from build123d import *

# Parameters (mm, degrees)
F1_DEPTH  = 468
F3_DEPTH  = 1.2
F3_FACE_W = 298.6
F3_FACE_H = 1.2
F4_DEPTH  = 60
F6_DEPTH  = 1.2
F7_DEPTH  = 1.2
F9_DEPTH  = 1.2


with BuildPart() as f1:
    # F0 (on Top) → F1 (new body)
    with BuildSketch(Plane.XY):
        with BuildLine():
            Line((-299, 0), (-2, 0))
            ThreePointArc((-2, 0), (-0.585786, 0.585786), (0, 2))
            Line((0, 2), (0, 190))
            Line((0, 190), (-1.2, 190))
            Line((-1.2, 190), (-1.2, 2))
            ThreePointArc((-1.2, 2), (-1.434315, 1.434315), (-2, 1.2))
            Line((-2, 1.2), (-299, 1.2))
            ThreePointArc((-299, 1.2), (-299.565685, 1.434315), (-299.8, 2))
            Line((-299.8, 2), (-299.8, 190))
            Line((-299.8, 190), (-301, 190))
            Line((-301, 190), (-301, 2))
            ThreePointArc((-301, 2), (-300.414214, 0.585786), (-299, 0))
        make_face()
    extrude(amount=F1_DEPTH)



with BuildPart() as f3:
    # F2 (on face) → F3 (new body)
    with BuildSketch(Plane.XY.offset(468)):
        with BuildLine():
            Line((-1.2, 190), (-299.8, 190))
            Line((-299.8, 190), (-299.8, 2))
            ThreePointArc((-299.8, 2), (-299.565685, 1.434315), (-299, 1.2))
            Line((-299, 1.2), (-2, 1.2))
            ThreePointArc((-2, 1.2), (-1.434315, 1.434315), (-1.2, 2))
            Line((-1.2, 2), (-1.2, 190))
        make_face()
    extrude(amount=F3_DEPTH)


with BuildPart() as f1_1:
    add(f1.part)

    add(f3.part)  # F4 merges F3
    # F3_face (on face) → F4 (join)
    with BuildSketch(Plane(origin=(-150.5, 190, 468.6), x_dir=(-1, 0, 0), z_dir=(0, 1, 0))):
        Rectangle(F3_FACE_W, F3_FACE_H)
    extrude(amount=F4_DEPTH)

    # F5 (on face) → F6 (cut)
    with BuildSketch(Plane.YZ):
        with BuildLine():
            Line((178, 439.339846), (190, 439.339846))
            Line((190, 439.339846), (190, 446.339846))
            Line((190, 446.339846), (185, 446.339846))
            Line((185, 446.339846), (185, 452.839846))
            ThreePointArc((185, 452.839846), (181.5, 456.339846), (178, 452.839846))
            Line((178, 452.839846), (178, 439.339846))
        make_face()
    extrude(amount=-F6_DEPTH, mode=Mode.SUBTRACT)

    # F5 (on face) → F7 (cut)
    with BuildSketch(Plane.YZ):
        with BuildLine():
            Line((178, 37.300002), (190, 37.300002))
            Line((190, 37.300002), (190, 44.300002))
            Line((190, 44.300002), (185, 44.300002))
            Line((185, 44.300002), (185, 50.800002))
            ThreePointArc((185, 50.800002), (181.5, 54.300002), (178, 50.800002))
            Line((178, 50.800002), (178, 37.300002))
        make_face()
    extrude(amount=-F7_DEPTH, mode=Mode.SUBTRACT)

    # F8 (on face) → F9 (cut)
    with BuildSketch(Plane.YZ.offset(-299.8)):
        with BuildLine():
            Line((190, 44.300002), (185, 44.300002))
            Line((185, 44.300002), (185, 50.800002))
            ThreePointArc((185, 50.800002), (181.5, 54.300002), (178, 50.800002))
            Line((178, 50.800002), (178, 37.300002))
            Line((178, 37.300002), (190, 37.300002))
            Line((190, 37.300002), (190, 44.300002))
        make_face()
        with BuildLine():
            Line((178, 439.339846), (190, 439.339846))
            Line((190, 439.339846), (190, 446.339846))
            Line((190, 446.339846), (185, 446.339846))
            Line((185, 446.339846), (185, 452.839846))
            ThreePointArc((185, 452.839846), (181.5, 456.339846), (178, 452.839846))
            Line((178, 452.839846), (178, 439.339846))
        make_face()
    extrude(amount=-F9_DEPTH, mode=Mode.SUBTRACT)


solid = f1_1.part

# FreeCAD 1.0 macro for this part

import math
import FreeCAD as App
import Part
import Sketcher

V = App.Vector
Q = App.Units.Quantity


def add_polygon(sketch, points):
    """Adds a closed chain of lines whose ends are joined by coincident constraints."""
    first, n = sketch.GeometryCount, len(points)
    for a, b in zip(points, points[1:] + points[:1]):
        sketch.addGeometry(Part.LineSegment(App.Vector(*a, 0), App.Vector(*b, 0)), False)
    for i in range(n):
        sketch.addConstraint(Sketcher.Constraint("Coincident", first + i, 2, first + (i + 1) % n, 1))

doc = App.newDocument("Part")
params = doc.addObject("Spreadsheet::Sheet", "Params")
for row, (alias, value) in enumerate([
    ("sketch1_radius", "1.999999 mm"),
    ("sketch1_radius2", "0.800001 mm"),
    ("sketch1_width", "297 mm"),
    ("sketch1_height", "188 mm"),
    ("pad1_length", "468 mm"),
    ("sketch2_radius", "0.800001 mm"),
    ("sketch2_width", "297 mm"),
    ("sketch2_height", "188 mm"),
    ("pad2_length", "1.2 mm"),
    ("sketch3_width", "298.6 mm"),
    ("sketch3_height", "1.2 mm"),
    ("pad3_length", "60 mm"),
    ("sketch4_radius", "3.5 mm"),
    ("sketch4_width", "12 mm"),
    ("sketch4_height", "7 mm"),
    ("sketch4_height2", "6.5 mm"),
    ("pocket1_length", "1.2 mm"),
    ("sketch5_radius", "3.5 mm"),
    ("sketch5_width", "12 mm"),
    ("sketch5_height", "7 mm"),
    ("sketch5_height2", "6.5 mm"),
    ("pocket2_length", "1.2 mm"),
    ("sketch6_radius", "3.5 mm"),
    ("sketch6_width", "5 mm"),
    ("sketch6_height", "7 mm"),
    ("sketch6_height2", "6.5 mm"),
    ("pocket3_length", "1.2 mm"),
], start=1):
    params.set(f"A{row}", alias)
    params.set(f"B{row}", "=" + value)
    params.setAlias(f"B{row}", alias)

body = doc.addObject("PartDesign::Body", "Body")

# Sketch on XY plane
sketch1 = body.newObject("Sketcher::SketchObject", "Sketch")
sketch1.AttachmentSupport = (doc.getObject("XY_Plane"), [""])
sketch1.MapMode = "FlatFace"
sketch1.addGeometry(Part.LineSegment(V(-299, 0, 0), V(-2, 0, 0)), False)
sketch1.addGeometry(Part.ArcOfCircle(Part.Circle(V(-1.999999, 1.999999, 0), V(0, 0, 1), 1.999999), math.radians(-90.000043), math.radians(0.000043)), False)
sketch1.addGeometry(Part.LineSegment(V(0, 2, 0), V(0, 190, 0)), False)
sketch1.addGeometry(Part.LineSegment(V(0, 190, 0), V(-1.2, 190, 0)), False)
sketch1.addGeometry(Part.LineSegment(V(-1.2, 190, 0), V(-1.2, 2, 0)), False)
sketch1.addGeometry(Part.ArcOfCircle(Part.Circle(V(-2.000001, 2.000001, 0), V(0, 0, 1), 0.800001), math.radians(-89.999896), math.radians(-0.000104)), False)
sketch1.addGeometry(Part.LineSegment(V(-2, 1.2, 0), V(-299, 1.2, 0)), False)
sketch1.addGeometry(Part.ArcOfCircle(Part.Circle(V(-298.999999, 2.000001, 0), V(0, 0, 1), 0.800001), math.radians(-179.999896), math.radians(-90.000104)), False)
sketch1.addGeometry(Part.LineSegment(V(-299.8, 2, 0), V(-299.8, 190, 0)), False)
sketch1.addGeometry(Part.LineSegment(V(-299.8, 190, 0), V(-301, 190, 0)), False)
sketch1.addGeometry(Part.LineSegment(V(-301, 190, 0), V(-301, 2, 0)), False)
sketch1.addGeometry(Part.ArcOfCircle(Part.Circle(V(-299.000001, 1.999999, 0), V(0, 0, 1), 1.999999), math.radians(179.999957), math.radians(270.000043)), False)
sketch1.addConstraint(Sketcher.Constraint("Tangent", 0, 2, 1, 1))
sketch1.addConstraint(Sketcher.Constraint("Tangent", 1, 2, 2, 1))
sketch1.addConstraint(Sketcher.Constraint("Coincident", 2, 2, 3, 1))
sketch1.addConstraint(Sketcher.Constraint("Coincident", 3, 2, 4, 1))
sketch1.addConstraint(Sketcher.Constraint("Tangent", 4, 2, 5, 2))
sketch1.addConstraint(Sketcher.Constraint("Tangent", 5, 1, 6, 1))
sketch1.addConstraint(Sketcher.Constraint("Tangent", 6, 2, 7, 2))
sketch1.addConstraint(Sketcher.Constraint("Tangent", 7, 1, 8, 1))
sketch1.addConstraint(Sketcher.Constraint("Coincident", 8, 2, 9, 1))
sketch1.addConstraint(Sketcher.Constraint("Coincident", 9, 2, 10, 1))
sketch1.addConstraint(Sketcher.Constraint("Tangent", 10, 2, 11, 1))
sketch1.addConstraint(Sketcher.Constraint("Tangent", 11, 2, 0, 1))
sketch1.addConstraint(Sketcher.Constraint("Horizontal", 0))
sketch1.addConstraint(Sketcher.Constraint("Vertical", 2))
sketch1.addConstraint(Sketcher.Constraint("Horizontal", 3))
sketch1.addConstraint(Sketcher.Constraint("Vertical", 4))
sketch1.addConstraint(Sketcher.Constraint("Horizontal", 6))
sketch1.addConstraint(Sketcher.Constraint("Vertical", 8))
sketch1.addConstraint(Sketcher.Constraint("Horizontal", 9))
sketch1.addConstraint(Sketcher.Constraint("Vertical", 10))
sketch1.addConstraint(Sketcher.Constraint("Coincident", 5, 3, 1, 3))
sketch1.addConstraint(Sketcher.Constraint("Coincident", 11, 3, 7, 3))
sketch1.addConstraint(Sketcher.Constraint("Equal", 5, 7))
sketch1.addConstraint(Sketcher.Constraint("PointOnObject", 0, 2, -1))
sketch1.addConstraint(Sketcher.Constraint("PointOnObject", 1, 2, -2))
sketch1.addConstraint(Sketcher.Constraint("Horizontal", 3, 2, 8, 2))
sketch1.addConstraint(Sketcher.Constraint("Radius", 1, Q("1.999999 mm")))
sketch1.addConstraint(Sketcher.Constraint("Radius", 5, Q("0.800001 mm")))
sketch1.addConstraint(Sketcher.Constraint("DistanceX", 0, 1, 0, 2, Q("297 mm")))
sketch1.addConstraint(Sketcher.Constraint("DistanceY", 2, 1, 2, 2, Q("188 mm")))
sketch1.setExpression("Constraints[26]", "Params.sketch1_radius")
sketch1.setExpression("Constraints[27]", "Params.sketch1_radius2")
sketch1.setExpression("Constraints[28]", "Params.sketch1_width")
sketch1.setExpression("Constraints[29]", "Params.sketch1_height")
pad1 = body.newObject("PartDesign::Pad", "Pad")
pad1.Profile = sketch1
pad1.setExpression("Length", "Params.pad1_length")
body2 = doc.addObject("PartDesign::Body", "Body001")

# Sketch on XY plane
sketch2 = body2.newObject("Sketcher::SketchObject", "Sketch001")
sketch2.AttachmentSupport = (doc.getObject("XY_Plane001"), [""])
sketch2.MapMode = "FlatFace"
sketch2.AttachmentOffset = App.Placement(V(0, 0, 468), App.Rotation())
sketch2.addGeometry(Part.LineSegment(V(-1.2, 190, 0), V(-299.8, 190, 0)), False)
sketch2.addGeometry(Part.LineSegment(V(-299.8, 190, 0), V(-299.8, 2, 0)), False)
sketch2.addGeometry(Part.ArcOfCircle(Part.Circle(V(-298.999999, 2.000001, 0), V(0, 0, 1), 0.800001), math.radians(-179.999896), math.radians(-90.000104)), False)
sketch2.addGeometry(Part.LineSegment(V(-299, 1.2, 0), V(-2, 1.2, 0)), False)
sketch2.addGeometry(Part.ArcOfCircle(Part.Circle(V(-2.000001, 2.000001, 0), V(0, 0, 1), 0.800001), math.radians(-89.999896), math.radians(-0.000104)), False)
sketch2.addGeometry(Part.LineSegment(V(-1.2, 2, 0), V(-1.2, 190, 0)), False)
sketch2.addConstraint(Sketcher.Constraint("Coincident", 0, 2, 1, 1))
sketch2.addConstraint(Sketcher.Constraint("Tangent", 1, 2, 2, 1))
sketch2.addConstraint(Sketcher.Constraint("Tangent", 2, 2, 3, 1))
sketch2.addConstraint(Sketcher.Constraint("Tangent", 3, 2, 4, 1))
sketch2.addConstraint(Sketcher.Constraint("Tangent", 4, 2, 5, 1))
sketch2.addConstraint(Sketcher.Constraint("Coincident", 5, 2, 0, 1))
sketch2.addConstraint(Sketcher.Constraint("Horizontal", 0))
sketch2.addConstraint(Sketcher.Constraint("Vertical", 1))
sketch2.addConstraint(Sketcher.Constraint("Horizontal", 3))
sketch2.addConstraint(Sketcher.Constraint("Vertical", 5))
sketch2.addConstraint(Sketcher.Constraint("Equal", 2, 4))
sketch2.addConstraint(Sketcher.Constraint("Radius", 2, Q("0.800001 mm")))
sketch2.addConstraint(Sketcher.Constraint("DistanceX", 3, 1, 3, 2, Q("297 mm")))
sketch2.addConstraint(Sketcher.Constraint("DistanceY", 1, 2, 1, 1, Q("188 mm")))
sketch2.addConstraint(Sketcher.Constraint("DistanceX", 2, 3, -1, 1, Q("298.999999 mm")))
sketch2.addConstraint(Sketcher.Constraint("DistanceY", -1, 1, 2, 3, Q("2.000001 mm")))
sketch2.setExpression("Constraints[11]", "Params.sketch2_radius")
sketch2.setExpression("Constraints[12]", "Params.sketch2_width")
sketch2.setExpression("Constraints[13]", "Params.sketch2_height")
pad2 = body2.newObject("PartDesign::Pad", "Pad001")
pad2.Profile = sketch2
pad2.setExpression("Length", "Params.pad2_length")
body.AllowCompound = True
doc.recompute()

boolean = body.newObject("PartDesign::Boolean", "Boolean")
boolean.Type = "Fuse"
boolean.addObjects([body2])

# Sketch on XZ plane
sketch3 = body.newObject("Sketcher::SketchObject", "Sketch002")
sketch3.AttachmentSupport = (doc.getObject("XZ_Plane"), [""])
sketch3.MapMode = "FlatFace"
sketch3.AttachmentOffset = App.Placement(V(0, 0, -190), App.Rotation())
add_polygon(sketch3, [(-1.2, 469.2), (-1.2, 468), (-299.8, 468), (-299.8, 469.2)])  # lines 0-3
sketch3.addConstraint(Sketcher.Constraint("Vertical", 0))
sketch3.addConstraint(Sketcher.Constraint("Horizontal", 1))
sketch3.addConstraint(Sketcher.Constraint("Vertical", 2))
sketch3.addConstraint(Sketcher.Constraint("Horizontal", 3))
sketch3.addConstraint(Sketcher.Constraint("DistanceX", 1, 2, 1, 1, Q("298.6 mm")))
sketch3.addConstraint(Sketcher.Constraint("DistanceY", 0, 2, 0, 1, Q("1.2 mm")))
sketch3.addConstraint(Sketcher.Constraint("DistanceY", -1, 1, 0, 2, Q("468 mm")))
sketch3.addConstraint(Sketcher.Constraint("DistanceX", 0, 2, -1, 1, Q("1.2 mm")))
sketch3.setExpression("Constraints[8]", "Params.sketch3_width")
sketch3.setExpression("Constraints[9]", "Params.sketch3_height")
pad3 = body.newObject("PartDesign::Pad", "Pad002")
pad3.Profile = sketch3
pad3.setExpression("Length", "Params.pad3_length")
pad3.Reversed = True

# Sketch on YZ plane
sketch4 = body.newObject("Sketcher::SketchObject", "Sketch003")
sketch4.AttachmentSupport = (doc.getObject("YZ_Plane"), [""])
sketch4.MapMode = "FlatFace"
sketch4.addGeometry(Part.LineSegment(V(178, 439.339846, 0), V(190, 439.339846, 0)), False)
sketch4.addGeometry(Part.LineSegment(V(190, 439.339846, 0), V(190, 446.339846, 0)), False)
sketch4.addGeometry(Part.LineSegment(V(190, 446.339846, 0), V(185, 446.339846, 0)), False)
sketch4.addGeometry(Part.LineSegment(V(185, 446.339846, 0), V(185, 452.839846, 0)), False)
sketch4.addGeometry(Part.ArcOfCircle(Part.Circle(V(181.5, 452.839846, 0), V(0, 0, 1), 3.5), math.radians(0), math.radians(180)), False)
sketch4.addGeometry(Part.LineSegment(V(178, 452.839846, 0), V(178, 439.339846, 0)), False)
sketch4.addConstraint(Sketcher.Constraint("Coincident", 0, 2, 1, 1))
sketch4.addConstraint(Sketcher.Constraint("Coincident", 1, 2, 2, 1))
sketch4.addConstraint(Sketcher.Constraint("Coincident", 2, 2, 3, 1))
sketch4.addConstraint(Sketcher.Constraint("Tangent", 3, 2, 4, 1))
sketch4.addConstraint(Sketcher.Constraint("Tangent", 4, 2, 5, 1))
sketch4.addConstraint(Sketcher.Constraint("Coincident", 5, 2, 0, 1))
sketch4.addConstraint(Sketcher.Constraint("Horizontal", 0))
sketch4.addConstraint(Sketcher.Constraint("Vertical", 1))
sketch4.addConstraint(Sketcher.Constraint("Horizontal", 2))
sketch4.addConstraint(Sketcher.Constraint("Vertical", 3))
sketch4.addConstraint(Sketcher.Constraint("Vertical", 5))
sketch4.addConstraint(Sketcher.Constraint("Radius", 4, Q("3.5 mm")))
sketch4.addConstraint(Sketcher.Constraint("DistanceX", 0, 1, 0, 2, Q("12 mm")))
sketch4.addConstraint(Sketcher.Constraint("DistanceY", 1, 1, 1, 2, Q("7 mm")))
sketch4.addConstraint(Sketcher.Constraint("DistanceY", 3, 1, 3, 2, Q("6.5 mm")))
sketch4.addConstraint(Sketcher.Constraint("DistanceX", -1, 1, 0, 2, Q("190 mm")))
sketch4.addConstraint(Sketcher.Constraint("DistanceY", -1, 1, 4, 3, Q("452.839846 mm")))
sketch4.setExpression("Constraints[11]", "Params.sketch4_radius")
sketch4.setExpression("Constraints[12]", "Params.sketch4_width")
sketch4.setExpression("Constraints[13]", "Params.sketch4_height")
sketch4.setExpression("Constraints[14]", "Params.sketch4_height2")
pocket1 = body.newObject("PartDesign::Pocket", "Pocket")
pocket1.Profile = sketch4
pocket1.setExpression("Length", "Params.pocket1_length")

# Sketch on YZ plane
sketch5 = body.newObject("Sketcher::SketchObject", "Sketch004")
sketch5.AttachmentSupport = (doc.getObject("YZ_Plane"), [""])
sketch5.MapMode = "FlatFace"
sketch5.addGeometry(Part.LineSegment(V(178, 37.300002, 0), V(190, 37.300002, 0)), False)
sketch5.addGeometry(Part.LineSegment(V(190, 37.300002, 0), V(190, 44.300002, 0)), False)
sketch5.addGeometry(Part.LineSegment(V(190, 44.300002, 0), V(185, 44.300002, 0)), False)
sketch5.addGeometry(Part.LineSegment(V(185, 44.300002, 0), V(185, 50.800002, 0)), False)
sketch5.addGeometry(Part.ArcOfCircle(Part.Circle(V(181.5, 50.800002, 0), V(0, 0, 1), 3.5), math.radians(0), math.radians(180)), False)
sketch5.addGeometry(Part.LineSegment(V(178, 50.800002, 0), V(178, 37.300002, 0)), False)
sketch5.addConstraint(Sketcher.Constraint("Coincident", 0, 2, 1, 1))
sketch5.addConstraint(Sketcher.Constraint("Coincident", 1, 2, 2, 1))
sketch5.addConstraint(Sketcher.Constraint("Coincident", 2, 2, 3, 1))
sketch5.addConstraint(Sketcher.Constraint("Tangent", 3, 2, 4, 1))
sketch5.addConstraint(Sketcher.Constraint("Tangent", 4, 2, 5, 1))
sketch5.addConstraint(Sketcher.Constraint("Coincident", 5, 2, 0, 1))
sketch5.addConstraint(Sketcher.Constraint("Horizontal", 0))
sketch5.addConstraint(Sketcher.Constraint("Vertical", 1))
sketch5.addConstraint(Sketcher.Constraint("Horizontal", 2))
sketch5.addConstraint(Sketcher.Constraint("Vertical", 3))
sketch5.addConstraint(Sketcher.Constraint("Vertical", 5))
sketch5.addConstraint(Sketcher.Constraint("Radius", 4, Q("3.5 mm")))
sketch5.addConstraint(Sketcher.Constraint("DistanceX", 0, 1, 0, 2, Q("12 mm")))
sketch5.addConstraint(Sketcher.Constraint("DistanceY", 1, 1, 1, 2, Q("7 mm")))
sketch5.addConstraint(Sketcher.Constraint("DistanceY", 3, 1, 3, 2, Q("6.5 mm")))
sketch5.addConstraint(Sketcher.Constraint("DistanceX", -1, 1, 0, 2, Q("190 mm")))
sketch5.addConstraint(Sketcher.Constraint("DistanceY", -1, 1, 4, 3, Q("50.800002 mm")))
sketch5.setExpression("Constraints[11]", "Params.sketch5_radius")
sketch5.setExpression("Constraints[12]", "Params.sketch5_width")
sketch5.setExpression("Constraints[13]", "Params.sketch5_height")
sketch5.setExpression("Constraints[14]", "Params.sketch5_height2")
pocket2 = body.newObject("PartDesign::Pocket", "Pocket001")
pocket2.Profile = sketch5
pocket2.setExpression("Length", "Params.pocket2_length")

# Sketch on YZ plane
sketch6 = body.newObject("Sketcher::SketchObject", "Sketch005")
sketch6.AttachmentSupport = (doc.getObject("YZ_Plane"), [""])
sketch6.MapMode = "FlatFace"
sketch6.AttachmentOffset = App.Placement(V(0, 0, -299.8), App.Rotation())
sketch6.addGeometry(Part.LineSegment(V(190, 44.300002, 0), V(185, 44.300002, 0)), False)
sketch6.addGeometry(Part.LineSegment(V(185, 44.300002, 0), V(185, 50.800002, 0)), False)
sketch6.addGeometry(Part.ArcOfCircle(Part.Circle(V(181.5, 50.800002, 0), V(0, 0, 1), 3.5), math.radians(0), math.radians(180)), False)
sketch6.addGeometry(Part.LineSegment(V(178, 50.800002, 0), V(178, 37.300002, 0)), False)
sketch6.addGeometry(Part.LineSegment(V(178, 37.300002, 0), V(190, 37.300002, 0)), False)
sketch6.addGeometry(Part.LineSegment(V(190, 37.300002, 0), V(190, 44.300002, 0)), False)
sketch6.addGeometry(Part.LineSegment(V(178, 439.339846, 0), V(190, 439.339846, 0)), False)
sketch6.addGeometry(Part.LineSegment(V(190, 439.339846, 0), V(190, 446.339846, 0)), False)
sketch6.addGeometry(Part.LineSegment(V(190, 446.339846, 0), V(185, 446.339846, 0)), False)
sketch6.addGeometry(Part.LineSegment(V(185, 446.339846, 0), V(185, 452.839846, 0)), False)
sketch6.addGeometry(Part.ArcOfCircle(Part.Circle(V(181.5, 452.839846, 0), V(0, 0, 1), 3.5), math.radians(0), math.radians(180)), False)
sketch6.addGeometry(Part.LineSegment(V(178, 452.839846, 0), V(178, 439.339846, 0)), False)
sketch6.addConstraint(Sketcher.Constraint("Coincident", 0, 2, 1, 1))
sketch6.addConstraint(Sketcher.Constraint("Tangent", 1, 2, 2, 1))
sketch6.addConstraint(Sketcher.Constraint("Tangent", 2, 2, 3, 1))
sketch6.addConstraint(Sketcher.Constraint("Coincident", 3, 2, 4, 1))
sketch6.addConstraint(Sketcher.Constraint("Coincident", 4, 2, 5, 1))
sketch6.addConstraint(Sketcher.Constraint("Coincident", 5, 2, 0, 1))
sketch6.addConstraint(Sketcher.Constraint("Coincident", 6, 2, 7, 1))
sketch6.addConstraint(Sketcher.Constraint("Coincident", 7, 2, 8, 1))
sketch6.addConstraint(Sketcher.Constraint("Coincident", 8, 2, 9, 1))
sketch6.addConstraint(Sketcher.Constraint("Tangent", 9, 2, 10, 1))
sketch6.addConstraint(Sketcher.Constraint("Tangent", 10, 2, 11, 1))
sketch6.addConstraint(Sketcher.Constraint("Coincident", 11, 2, 6, 1))
sketch6.addConstraint(Sketcher.Constraint("Horizontal", 0))
sketch6.addConstraint(Sketcher.Constraint("Vertical", 1))
sketch6.addConstraint(Sketcher.Constraint("Vertical", 3))
sketch6.addConstraint(Sketcher.Constraint("Horizontal", 4))
sketch6.addConstraint(Sketcher.Constraint("Vertical", 5))
sketch6.addConstraint(Sketcher.Constraint("Horizontal", 6))
sketch6.addConstraint(Sketcher.Constraint("Vertical", 7))
sketch6.addConstraint(Sketcher.Constraint("Horizontal", 8))
sketch6.addConstraint(Sketcher.Constraint("Vertical", 9))
sketch6.addConstraint(Sketcher.Constraint("Vertical", 11))
sketch6.addConstraint(Sketcher.Constraint("Equal", 2, 10))
sketch6.addConstraint(Sketcher.Constraint("Vertical", 2, 3, 10, 3))
sketch6.addConstraint(Sketcher.Constraint("Vertical", 5, 2, 6, 2))
sketch6.addConstraint(Sketcher.Constraint("Equal", 5, 7))
sketch6.addConstraint(Sketcher.Constraint("Equal", 1, 9))
sketch6.addConstraint(Sketcher.Constraint("Radius", 2, Q("3.5 mm")))
sketch6.addConstraint(Sketcher.Constraint("DistanceX", 0, 2, 0, 1, Q("5 mm")))
sketch6.addConstraint(Sketcher.Constraint("DistanceY", 5, 1, 5, 2, Q("7 mm")))
sketch6.addConstraint(Sketcher.Constraint("DistanceY", 1, 1, 1, 2, Q("6.5 mm")))
sketch6.addConstraint(Sketcher.Constraint("DistanceX", -1, 1, 0, 2, Q("185 mm")))
sketch6.addConstraint(Sketcher.Constraint("DistanceY", -1, 1, 2, 3, Q("50.800002 mm")))
sketch6.addConstraint(Sketcher.Constraint("DistanceY", -1, 1, 10, 3, Q("452.839846 mm")))
sketch6.setExpression("Constraints[27]", "Params.sketch6_radius")
sketch6.setExpression("Constraints[28]", "Params.sketch6_width")
sketch6.setExpression("Constraints[29]", "Params.sketch6_height")
sketch6.setExpression("Constraints[30]", "Params.sketch6_height2")
pocket3 = body.newObject("PartDesign::Pocket", "Pocket002")
pocket3.Profile = sketch6
pocket3.setExpression("Length", "Params.pocket3_length")

doc.recompute()
